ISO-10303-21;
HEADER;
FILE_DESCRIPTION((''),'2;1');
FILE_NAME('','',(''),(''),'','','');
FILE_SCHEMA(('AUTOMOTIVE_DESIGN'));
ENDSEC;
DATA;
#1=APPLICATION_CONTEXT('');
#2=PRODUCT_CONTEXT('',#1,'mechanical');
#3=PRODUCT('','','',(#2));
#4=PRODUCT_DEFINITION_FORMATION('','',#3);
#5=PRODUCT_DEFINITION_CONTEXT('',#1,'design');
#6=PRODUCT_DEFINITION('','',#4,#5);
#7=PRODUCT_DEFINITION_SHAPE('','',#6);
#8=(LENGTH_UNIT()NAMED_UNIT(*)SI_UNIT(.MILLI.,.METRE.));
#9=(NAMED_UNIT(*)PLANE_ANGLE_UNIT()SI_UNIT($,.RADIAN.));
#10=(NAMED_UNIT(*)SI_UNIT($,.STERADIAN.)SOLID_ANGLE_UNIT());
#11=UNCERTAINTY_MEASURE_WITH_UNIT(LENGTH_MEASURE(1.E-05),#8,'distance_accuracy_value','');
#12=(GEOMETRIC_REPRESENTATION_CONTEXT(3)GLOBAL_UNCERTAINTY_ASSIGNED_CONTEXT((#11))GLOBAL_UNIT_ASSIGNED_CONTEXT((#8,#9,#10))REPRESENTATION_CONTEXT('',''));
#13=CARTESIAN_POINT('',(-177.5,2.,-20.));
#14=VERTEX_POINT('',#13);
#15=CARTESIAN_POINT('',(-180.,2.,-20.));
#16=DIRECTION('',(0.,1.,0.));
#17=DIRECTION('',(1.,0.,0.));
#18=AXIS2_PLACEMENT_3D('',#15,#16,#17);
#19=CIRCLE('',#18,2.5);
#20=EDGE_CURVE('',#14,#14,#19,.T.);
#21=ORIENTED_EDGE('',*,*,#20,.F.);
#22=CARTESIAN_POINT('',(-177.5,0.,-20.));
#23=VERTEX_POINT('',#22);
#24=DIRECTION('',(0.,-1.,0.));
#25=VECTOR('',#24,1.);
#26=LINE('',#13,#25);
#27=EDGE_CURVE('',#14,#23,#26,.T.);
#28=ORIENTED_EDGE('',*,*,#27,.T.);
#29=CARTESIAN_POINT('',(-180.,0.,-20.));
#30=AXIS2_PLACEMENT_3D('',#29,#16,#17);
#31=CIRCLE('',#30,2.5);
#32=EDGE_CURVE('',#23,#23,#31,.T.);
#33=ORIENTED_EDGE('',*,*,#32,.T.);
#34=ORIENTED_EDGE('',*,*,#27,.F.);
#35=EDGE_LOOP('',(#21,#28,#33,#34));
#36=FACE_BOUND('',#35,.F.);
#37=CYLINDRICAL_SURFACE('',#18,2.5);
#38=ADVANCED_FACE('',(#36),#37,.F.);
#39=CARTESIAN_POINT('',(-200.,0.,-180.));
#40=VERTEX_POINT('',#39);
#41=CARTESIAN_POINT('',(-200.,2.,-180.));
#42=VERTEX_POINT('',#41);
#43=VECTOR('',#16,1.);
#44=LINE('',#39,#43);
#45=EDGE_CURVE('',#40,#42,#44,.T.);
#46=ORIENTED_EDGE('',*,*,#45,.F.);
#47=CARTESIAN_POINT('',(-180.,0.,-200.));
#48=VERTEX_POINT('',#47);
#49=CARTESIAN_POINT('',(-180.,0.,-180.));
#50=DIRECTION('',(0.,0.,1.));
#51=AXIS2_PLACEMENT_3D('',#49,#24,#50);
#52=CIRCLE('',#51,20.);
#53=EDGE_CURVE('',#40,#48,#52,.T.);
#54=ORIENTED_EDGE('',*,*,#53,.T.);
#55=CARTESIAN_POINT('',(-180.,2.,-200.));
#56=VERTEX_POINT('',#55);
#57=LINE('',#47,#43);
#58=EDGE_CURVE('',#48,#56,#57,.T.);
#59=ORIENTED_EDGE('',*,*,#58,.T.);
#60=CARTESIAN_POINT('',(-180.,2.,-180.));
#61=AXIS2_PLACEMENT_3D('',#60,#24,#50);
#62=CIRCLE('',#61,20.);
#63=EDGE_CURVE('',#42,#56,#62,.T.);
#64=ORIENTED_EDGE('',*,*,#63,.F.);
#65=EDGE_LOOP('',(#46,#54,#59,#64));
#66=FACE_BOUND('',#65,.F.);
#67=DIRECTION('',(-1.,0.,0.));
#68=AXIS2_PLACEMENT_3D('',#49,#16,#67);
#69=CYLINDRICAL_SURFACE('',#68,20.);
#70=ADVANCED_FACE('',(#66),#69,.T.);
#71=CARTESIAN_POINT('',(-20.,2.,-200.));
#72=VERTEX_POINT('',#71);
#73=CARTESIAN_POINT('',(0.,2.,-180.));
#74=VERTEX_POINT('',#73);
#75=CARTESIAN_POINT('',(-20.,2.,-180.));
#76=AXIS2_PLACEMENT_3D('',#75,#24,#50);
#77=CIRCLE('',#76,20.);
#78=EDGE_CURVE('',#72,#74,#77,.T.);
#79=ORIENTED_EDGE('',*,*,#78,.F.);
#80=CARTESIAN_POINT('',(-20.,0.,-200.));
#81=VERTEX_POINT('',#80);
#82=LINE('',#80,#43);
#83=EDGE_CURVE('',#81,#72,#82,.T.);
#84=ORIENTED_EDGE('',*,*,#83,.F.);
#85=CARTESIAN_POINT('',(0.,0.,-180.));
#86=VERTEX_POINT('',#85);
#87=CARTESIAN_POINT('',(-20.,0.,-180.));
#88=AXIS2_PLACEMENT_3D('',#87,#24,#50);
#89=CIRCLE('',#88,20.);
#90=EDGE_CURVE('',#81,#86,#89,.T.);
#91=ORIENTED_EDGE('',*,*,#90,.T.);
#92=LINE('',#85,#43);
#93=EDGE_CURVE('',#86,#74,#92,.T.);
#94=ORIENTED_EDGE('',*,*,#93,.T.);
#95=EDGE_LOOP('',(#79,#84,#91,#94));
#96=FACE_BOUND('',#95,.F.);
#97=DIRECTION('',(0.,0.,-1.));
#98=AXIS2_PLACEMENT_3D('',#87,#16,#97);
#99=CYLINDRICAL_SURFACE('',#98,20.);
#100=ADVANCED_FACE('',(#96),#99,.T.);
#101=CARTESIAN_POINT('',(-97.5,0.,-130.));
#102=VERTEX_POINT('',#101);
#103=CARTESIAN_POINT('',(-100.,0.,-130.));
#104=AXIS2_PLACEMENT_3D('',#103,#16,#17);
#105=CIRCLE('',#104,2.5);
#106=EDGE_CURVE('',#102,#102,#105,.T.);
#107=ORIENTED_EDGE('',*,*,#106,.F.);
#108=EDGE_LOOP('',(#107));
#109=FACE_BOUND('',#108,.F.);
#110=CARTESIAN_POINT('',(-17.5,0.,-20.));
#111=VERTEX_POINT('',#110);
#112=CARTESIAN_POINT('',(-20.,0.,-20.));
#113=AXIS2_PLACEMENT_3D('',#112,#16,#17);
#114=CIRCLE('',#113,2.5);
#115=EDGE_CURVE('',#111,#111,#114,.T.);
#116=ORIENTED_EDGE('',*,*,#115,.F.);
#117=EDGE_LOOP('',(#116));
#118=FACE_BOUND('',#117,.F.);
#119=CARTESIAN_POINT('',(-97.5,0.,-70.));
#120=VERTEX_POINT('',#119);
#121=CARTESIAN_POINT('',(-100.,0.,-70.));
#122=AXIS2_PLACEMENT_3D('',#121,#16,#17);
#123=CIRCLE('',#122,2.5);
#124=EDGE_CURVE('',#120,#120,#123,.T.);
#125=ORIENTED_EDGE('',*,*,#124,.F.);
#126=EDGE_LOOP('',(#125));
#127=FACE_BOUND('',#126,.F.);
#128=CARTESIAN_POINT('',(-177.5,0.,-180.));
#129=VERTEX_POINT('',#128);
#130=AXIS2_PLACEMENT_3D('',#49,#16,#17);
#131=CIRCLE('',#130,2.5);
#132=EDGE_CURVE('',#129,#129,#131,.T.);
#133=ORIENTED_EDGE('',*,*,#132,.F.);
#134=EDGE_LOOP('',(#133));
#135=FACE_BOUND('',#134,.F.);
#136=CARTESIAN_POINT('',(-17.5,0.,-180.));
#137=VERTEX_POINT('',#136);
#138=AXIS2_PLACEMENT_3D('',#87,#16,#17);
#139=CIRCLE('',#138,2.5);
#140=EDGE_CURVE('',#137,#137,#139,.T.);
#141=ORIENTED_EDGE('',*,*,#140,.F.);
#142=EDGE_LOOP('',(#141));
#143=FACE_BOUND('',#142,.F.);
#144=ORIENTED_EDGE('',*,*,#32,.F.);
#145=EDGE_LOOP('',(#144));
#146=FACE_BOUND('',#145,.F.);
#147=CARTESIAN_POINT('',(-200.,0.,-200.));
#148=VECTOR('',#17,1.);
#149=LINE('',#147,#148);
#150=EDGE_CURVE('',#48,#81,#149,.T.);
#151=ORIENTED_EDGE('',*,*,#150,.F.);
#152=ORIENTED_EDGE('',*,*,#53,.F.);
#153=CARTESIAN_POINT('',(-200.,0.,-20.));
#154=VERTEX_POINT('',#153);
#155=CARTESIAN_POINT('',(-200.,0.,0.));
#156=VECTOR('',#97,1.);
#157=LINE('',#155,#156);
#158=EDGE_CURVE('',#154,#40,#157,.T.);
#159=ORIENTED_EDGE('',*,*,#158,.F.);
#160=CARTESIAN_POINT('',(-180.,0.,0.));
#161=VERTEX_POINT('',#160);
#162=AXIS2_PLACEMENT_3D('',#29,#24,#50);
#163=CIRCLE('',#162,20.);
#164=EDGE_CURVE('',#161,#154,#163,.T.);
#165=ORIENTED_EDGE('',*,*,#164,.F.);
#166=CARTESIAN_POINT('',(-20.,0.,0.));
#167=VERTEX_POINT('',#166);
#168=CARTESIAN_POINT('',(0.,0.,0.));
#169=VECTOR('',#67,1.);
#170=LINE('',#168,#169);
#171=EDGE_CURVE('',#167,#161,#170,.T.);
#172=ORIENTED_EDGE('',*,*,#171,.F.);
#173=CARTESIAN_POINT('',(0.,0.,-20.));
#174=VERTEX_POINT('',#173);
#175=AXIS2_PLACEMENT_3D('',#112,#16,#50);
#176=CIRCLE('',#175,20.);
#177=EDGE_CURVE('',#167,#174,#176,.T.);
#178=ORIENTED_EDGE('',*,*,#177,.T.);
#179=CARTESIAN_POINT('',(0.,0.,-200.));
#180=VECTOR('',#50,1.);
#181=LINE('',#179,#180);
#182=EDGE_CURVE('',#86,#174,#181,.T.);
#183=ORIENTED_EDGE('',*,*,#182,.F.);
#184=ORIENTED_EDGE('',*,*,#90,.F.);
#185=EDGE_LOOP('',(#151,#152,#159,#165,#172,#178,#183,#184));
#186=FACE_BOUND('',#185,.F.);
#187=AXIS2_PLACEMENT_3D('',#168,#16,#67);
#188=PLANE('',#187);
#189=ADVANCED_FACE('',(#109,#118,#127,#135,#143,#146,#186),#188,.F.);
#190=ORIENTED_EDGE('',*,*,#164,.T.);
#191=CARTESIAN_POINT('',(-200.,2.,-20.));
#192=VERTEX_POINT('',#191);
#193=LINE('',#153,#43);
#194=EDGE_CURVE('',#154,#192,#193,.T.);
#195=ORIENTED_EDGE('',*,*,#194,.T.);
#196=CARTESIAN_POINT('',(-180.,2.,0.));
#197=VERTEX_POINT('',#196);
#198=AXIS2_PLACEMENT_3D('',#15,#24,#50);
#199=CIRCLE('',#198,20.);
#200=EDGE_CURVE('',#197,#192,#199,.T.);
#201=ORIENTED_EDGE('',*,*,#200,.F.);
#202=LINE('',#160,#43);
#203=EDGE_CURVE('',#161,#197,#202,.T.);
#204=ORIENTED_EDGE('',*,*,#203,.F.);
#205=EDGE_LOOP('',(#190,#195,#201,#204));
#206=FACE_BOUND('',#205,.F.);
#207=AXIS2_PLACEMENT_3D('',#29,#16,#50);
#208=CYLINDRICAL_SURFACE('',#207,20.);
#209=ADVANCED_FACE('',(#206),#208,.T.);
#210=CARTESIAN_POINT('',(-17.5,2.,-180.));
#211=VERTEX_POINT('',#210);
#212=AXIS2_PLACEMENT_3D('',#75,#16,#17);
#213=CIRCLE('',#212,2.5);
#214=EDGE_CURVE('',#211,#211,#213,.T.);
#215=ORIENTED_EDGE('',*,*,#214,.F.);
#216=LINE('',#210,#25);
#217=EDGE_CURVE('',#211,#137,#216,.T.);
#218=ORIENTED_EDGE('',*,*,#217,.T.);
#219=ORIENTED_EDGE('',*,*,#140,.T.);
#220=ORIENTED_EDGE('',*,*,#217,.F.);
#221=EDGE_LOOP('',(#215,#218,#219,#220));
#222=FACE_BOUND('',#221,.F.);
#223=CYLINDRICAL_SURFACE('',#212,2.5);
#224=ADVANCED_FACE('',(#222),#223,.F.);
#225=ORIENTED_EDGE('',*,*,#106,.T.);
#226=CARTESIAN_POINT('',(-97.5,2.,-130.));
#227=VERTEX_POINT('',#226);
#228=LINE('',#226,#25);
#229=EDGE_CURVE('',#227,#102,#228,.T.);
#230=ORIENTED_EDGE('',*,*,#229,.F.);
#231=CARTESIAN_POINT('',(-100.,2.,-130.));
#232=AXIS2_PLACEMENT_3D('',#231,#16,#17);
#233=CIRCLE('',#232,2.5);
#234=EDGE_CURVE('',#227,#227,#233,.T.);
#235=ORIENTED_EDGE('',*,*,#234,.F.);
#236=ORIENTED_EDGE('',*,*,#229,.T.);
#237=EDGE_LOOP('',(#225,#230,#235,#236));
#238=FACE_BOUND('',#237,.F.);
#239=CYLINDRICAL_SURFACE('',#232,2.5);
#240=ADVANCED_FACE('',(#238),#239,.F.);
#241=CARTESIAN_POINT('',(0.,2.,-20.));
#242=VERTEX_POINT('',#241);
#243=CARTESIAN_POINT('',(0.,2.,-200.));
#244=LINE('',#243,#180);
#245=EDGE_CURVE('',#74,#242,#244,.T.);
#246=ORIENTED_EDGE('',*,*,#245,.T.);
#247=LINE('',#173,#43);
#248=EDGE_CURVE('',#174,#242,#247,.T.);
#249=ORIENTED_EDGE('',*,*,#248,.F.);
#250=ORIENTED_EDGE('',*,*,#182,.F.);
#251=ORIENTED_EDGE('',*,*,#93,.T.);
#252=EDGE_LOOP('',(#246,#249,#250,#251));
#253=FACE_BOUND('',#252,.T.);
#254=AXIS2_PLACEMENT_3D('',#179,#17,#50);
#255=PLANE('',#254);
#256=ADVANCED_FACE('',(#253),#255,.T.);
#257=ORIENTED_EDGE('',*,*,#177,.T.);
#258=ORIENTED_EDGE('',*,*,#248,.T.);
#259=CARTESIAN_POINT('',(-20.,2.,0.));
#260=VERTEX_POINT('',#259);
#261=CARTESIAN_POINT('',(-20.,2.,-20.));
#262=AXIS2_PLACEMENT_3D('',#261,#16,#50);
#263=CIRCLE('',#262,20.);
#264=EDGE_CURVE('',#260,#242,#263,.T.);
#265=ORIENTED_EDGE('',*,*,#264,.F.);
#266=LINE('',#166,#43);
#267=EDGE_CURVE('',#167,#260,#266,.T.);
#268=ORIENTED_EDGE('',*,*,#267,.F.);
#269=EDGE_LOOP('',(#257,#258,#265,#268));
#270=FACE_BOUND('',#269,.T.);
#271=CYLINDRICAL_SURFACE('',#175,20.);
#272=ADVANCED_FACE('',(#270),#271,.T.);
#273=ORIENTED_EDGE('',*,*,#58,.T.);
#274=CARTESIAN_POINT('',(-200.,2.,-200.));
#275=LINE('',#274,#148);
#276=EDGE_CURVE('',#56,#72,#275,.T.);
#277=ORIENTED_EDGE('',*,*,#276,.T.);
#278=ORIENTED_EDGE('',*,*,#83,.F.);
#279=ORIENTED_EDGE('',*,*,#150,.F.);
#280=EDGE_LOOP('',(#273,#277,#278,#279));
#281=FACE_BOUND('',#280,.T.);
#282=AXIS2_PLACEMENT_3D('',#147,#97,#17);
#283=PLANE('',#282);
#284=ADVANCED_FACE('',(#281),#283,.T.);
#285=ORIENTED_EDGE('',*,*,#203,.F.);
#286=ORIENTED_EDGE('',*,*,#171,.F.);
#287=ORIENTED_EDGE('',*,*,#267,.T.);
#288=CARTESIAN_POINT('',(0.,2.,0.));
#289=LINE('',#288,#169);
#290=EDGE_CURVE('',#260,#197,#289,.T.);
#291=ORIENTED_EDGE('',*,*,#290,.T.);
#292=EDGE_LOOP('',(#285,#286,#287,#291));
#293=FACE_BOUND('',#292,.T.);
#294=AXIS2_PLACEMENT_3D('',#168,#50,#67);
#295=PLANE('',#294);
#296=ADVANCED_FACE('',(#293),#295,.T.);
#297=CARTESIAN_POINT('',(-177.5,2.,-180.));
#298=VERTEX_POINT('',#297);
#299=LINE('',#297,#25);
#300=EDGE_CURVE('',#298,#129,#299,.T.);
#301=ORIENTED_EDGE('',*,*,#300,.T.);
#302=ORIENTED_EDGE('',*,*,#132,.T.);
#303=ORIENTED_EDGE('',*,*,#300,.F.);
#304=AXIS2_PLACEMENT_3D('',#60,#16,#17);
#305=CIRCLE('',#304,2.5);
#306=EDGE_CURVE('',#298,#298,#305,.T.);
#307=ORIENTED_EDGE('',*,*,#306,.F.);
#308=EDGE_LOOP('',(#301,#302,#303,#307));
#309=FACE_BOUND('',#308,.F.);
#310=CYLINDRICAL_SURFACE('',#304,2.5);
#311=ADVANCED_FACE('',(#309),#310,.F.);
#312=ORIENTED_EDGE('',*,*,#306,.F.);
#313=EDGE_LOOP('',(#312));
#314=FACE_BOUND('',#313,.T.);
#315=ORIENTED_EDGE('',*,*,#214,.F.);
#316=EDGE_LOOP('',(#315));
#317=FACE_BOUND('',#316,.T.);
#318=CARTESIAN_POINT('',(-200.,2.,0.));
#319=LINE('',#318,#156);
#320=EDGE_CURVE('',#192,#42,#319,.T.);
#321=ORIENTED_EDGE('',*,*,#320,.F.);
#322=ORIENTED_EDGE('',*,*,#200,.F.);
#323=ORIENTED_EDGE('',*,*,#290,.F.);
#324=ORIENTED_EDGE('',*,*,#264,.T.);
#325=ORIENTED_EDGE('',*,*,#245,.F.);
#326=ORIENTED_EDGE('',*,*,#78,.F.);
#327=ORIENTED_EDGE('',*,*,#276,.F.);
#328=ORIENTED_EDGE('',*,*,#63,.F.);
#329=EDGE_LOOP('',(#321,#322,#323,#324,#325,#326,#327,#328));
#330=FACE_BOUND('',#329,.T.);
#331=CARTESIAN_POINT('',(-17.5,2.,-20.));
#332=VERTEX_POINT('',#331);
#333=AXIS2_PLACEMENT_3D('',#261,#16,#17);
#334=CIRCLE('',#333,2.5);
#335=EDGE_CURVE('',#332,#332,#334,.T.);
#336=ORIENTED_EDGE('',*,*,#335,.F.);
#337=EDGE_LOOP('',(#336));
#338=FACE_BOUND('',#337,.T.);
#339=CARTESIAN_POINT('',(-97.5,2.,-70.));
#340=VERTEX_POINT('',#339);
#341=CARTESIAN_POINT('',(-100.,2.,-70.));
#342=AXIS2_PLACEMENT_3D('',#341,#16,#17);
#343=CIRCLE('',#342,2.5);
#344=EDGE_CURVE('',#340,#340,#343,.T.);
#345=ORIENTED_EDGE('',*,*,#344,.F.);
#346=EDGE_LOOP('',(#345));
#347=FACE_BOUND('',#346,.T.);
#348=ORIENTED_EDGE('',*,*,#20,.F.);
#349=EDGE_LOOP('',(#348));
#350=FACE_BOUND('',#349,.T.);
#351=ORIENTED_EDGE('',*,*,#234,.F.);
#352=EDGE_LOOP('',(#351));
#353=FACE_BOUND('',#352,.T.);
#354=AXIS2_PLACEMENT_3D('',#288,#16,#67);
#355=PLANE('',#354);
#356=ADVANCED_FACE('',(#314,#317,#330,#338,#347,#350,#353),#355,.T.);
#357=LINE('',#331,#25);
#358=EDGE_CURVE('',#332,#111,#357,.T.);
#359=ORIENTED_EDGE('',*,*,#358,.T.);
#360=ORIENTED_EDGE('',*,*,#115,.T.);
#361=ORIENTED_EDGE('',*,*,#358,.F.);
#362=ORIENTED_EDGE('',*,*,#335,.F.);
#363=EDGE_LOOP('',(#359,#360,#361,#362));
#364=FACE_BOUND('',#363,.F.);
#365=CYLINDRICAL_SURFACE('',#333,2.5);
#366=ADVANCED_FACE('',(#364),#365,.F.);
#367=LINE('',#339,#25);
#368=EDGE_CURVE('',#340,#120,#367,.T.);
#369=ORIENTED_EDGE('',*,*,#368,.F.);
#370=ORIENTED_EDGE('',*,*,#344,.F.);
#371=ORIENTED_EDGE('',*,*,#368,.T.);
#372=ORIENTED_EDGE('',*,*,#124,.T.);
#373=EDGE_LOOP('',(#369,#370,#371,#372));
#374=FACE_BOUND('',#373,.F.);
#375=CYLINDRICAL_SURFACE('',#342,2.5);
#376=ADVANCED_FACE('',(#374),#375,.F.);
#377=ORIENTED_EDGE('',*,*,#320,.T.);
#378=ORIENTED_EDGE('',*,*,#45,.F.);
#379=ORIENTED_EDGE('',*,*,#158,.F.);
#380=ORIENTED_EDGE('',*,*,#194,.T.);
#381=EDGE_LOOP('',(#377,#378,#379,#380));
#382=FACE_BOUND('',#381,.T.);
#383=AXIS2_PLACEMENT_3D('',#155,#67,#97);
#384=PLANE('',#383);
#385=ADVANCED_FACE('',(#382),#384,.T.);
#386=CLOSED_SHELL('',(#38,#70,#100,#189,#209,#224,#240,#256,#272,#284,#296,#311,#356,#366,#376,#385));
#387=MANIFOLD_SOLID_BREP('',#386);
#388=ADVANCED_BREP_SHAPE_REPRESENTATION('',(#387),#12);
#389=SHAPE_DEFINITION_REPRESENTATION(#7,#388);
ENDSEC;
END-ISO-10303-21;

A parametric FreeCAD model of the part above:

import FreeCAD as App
import Part
import Sketcher
from FreeCAD import Vector


def edges_at(feature, points):
    """Names of the edges that pass closest to the given points."""
    edges = feature.Shape.Edges
    near = lambda p: min(range(len(edges)), key=lambda i: edges[i].distToShape(Part.Vertex(*p))[0])
    return sorted({f"Edge{near(p) + 1}" for p in points})


def add_polygon(sketch, points):
    """Adds a closed chain of lines whose ends are joined by coincident constraints."""
    first, n = sketch.GeometryCount, len(points)
    for a, b in zip(points, points[1:] + points[:1]):
        sketch.addGeometry(Part.LineSegment(App.Vector(*a, 0), App.Vector(*b, 0)), False)
    for i in range(n):
        sketch.addConstraint(Sketcher.Constraint("Coincident", first + i, 2, first + (i + 1) % n, 1))

doc = App.newDocument("Part")
body = doc.addObject("PartDesign::Body", "Body")

# Sketch on XZ plane
sketch1 = body.newObject("Sketcher::SketchObject", "Sketch")
sketch1.AttachmentSupport = (doc.getObject("XZ_Plane"), [""])
sketch1.MapMode = "FlatFace"
add_polygon(sketch1, [(-200, 0), (0, 0), (0, -200), (-200, -200)])  # lines 0-3
sketch1.addConstraint([
    Sketcher.Constraint("Horizontal", 0),
    Sketcher.Constraint("Vertical", 1),
    Sketcher.Constraint("Horizontal", 2),
    Sketcher.Constraint("Vertical", 3),
    Sketcher.Constraint("Coincident", 0, 2, -1, 1),
    Sketcher.Constraint("Equal", 2, 1),
    Sketcher.Constraint("DistanceX", 0, 1, 0, 2, 200.0),
])
pad1 = body.newObject("PartDesign::Pad", "Pad")
pad1.Profile = sketch1
pad1.Length = 2
pad1.Reversed = True
doc.recompute()

fillet = body.newObject("PartDesign::Fillet", "Fillet")
fillet.Base = (pad1, edges_at(pad1, [
    (-200, 1, 0),
    (0, 1, 0),
    (0, 1, -200),
    (-200, 1, -200),
]))
fillet.Radius = 20

# Sketch on XZ plane
sketch2 = body.newObject("Sketcher::SketchObject", "Sketch001")
sketch2.AttachmentSupport = (doc.getObject("XZ_Plane"), [""])
sketch2.MapMode = "FlatFace"
sketch2.AttachmentOffset = App.Placement(Vector(0, 0, -2), App.Rotation())
sketch2.addGeometry([
    Part.Circle(Vector(-20, -180, 0), Vector(0, 0, 1), 2.5),
    Part.Circle(Vector(-180, -180, 0), Vector(0, 0, 1), 2.5),
    Part.Circle(Vector(-180, -20, 0), Vector(0, 0, 1), 2.5),
    Part.Circle(Vector(-20, -20, 0), Vector(0, 0, 1), 2.5),
], False)
sketch2.addConstraint([
    Sketcher.Constraint("Equal", 0, 1),
    Sketcher.Constraint("Equal", 1, 2),
    Sketcher.Constraint("Equal", 2, 3),
    Sketcher.Constraint("Horizontal", 0, 3, 1, 3),
    Sketcher.Constraint("Horizontal", 2, 3, 3, 3),
    Sketcher.Constraint("Vertical", 1, 3, 2, 3),
    Sketcher.Constraint("Vertical", 0, 3, 3, 3),
    Sketcher.Constraint("Diameter", 0, 5.0),
    Sketcher.Constraint("DistanceX", 0, 3, -1, 1, 20.0),
    Sketcher.Constraint("DistanceY", 0, 3, -1, 1, 180.0),
    Sketcher.Constraint("DistanceX", 1, 3, -1, 1, 180.0),
    Sketcher.Constraint("DistanceY", 2, 3, -1, 1, 20.0),
])
pocket1 = body.newObject("PartDesign::Pocket", "Pocket")
pocket1.Profile = sketch2
pocket1.Length = 2
pocket1.Reversed = True

# Sketch on XZ plane
sketch3 = body.newObject("Sketcher::SketchObject", "Sketch002")
sketch3.AttachmentSupport = (doc.getObject("XZ_Plane"), [""])
sketch3.MapMode = "FlatFace"
sketch3.AttachmentOffset = App.Placement(Vector(0, 0, -2), App.Rotation())
sketch3.addGeometry([
    Part.Circle(Vector(-100, -70, 0), Vector(0, 0, 1), 2.5),
    Part.Circle(Vector(-100, -130, 0), Vector(0, 0, 1), 2.5),
], False)
sketch3.addConstraint([
    Sketcher.Constraint("Equal", 0, 1),
    Sketcher.Constraint("Vertical", 0, 3, 1, 3),
    Sketcher.Constraint("Diameter", 0, 5.0),
    Sketcher.Constraint("DistanceX", 0, 3, -1, 1, 100.0),
    Sketcher.Constraint("DistanceY", 0, 3, -1, 1, 70.0),
    Sketcher.Constraint("DistanceY", 1, 3, -1, 1, 130.0),
])
pocket2 = body.newObject("PartDesign::Pocket", "Pocket001")
pocket2.Profile = sketch3
pocket2.Length = 10
pocket2.Reversed = True

doc.recompute()
